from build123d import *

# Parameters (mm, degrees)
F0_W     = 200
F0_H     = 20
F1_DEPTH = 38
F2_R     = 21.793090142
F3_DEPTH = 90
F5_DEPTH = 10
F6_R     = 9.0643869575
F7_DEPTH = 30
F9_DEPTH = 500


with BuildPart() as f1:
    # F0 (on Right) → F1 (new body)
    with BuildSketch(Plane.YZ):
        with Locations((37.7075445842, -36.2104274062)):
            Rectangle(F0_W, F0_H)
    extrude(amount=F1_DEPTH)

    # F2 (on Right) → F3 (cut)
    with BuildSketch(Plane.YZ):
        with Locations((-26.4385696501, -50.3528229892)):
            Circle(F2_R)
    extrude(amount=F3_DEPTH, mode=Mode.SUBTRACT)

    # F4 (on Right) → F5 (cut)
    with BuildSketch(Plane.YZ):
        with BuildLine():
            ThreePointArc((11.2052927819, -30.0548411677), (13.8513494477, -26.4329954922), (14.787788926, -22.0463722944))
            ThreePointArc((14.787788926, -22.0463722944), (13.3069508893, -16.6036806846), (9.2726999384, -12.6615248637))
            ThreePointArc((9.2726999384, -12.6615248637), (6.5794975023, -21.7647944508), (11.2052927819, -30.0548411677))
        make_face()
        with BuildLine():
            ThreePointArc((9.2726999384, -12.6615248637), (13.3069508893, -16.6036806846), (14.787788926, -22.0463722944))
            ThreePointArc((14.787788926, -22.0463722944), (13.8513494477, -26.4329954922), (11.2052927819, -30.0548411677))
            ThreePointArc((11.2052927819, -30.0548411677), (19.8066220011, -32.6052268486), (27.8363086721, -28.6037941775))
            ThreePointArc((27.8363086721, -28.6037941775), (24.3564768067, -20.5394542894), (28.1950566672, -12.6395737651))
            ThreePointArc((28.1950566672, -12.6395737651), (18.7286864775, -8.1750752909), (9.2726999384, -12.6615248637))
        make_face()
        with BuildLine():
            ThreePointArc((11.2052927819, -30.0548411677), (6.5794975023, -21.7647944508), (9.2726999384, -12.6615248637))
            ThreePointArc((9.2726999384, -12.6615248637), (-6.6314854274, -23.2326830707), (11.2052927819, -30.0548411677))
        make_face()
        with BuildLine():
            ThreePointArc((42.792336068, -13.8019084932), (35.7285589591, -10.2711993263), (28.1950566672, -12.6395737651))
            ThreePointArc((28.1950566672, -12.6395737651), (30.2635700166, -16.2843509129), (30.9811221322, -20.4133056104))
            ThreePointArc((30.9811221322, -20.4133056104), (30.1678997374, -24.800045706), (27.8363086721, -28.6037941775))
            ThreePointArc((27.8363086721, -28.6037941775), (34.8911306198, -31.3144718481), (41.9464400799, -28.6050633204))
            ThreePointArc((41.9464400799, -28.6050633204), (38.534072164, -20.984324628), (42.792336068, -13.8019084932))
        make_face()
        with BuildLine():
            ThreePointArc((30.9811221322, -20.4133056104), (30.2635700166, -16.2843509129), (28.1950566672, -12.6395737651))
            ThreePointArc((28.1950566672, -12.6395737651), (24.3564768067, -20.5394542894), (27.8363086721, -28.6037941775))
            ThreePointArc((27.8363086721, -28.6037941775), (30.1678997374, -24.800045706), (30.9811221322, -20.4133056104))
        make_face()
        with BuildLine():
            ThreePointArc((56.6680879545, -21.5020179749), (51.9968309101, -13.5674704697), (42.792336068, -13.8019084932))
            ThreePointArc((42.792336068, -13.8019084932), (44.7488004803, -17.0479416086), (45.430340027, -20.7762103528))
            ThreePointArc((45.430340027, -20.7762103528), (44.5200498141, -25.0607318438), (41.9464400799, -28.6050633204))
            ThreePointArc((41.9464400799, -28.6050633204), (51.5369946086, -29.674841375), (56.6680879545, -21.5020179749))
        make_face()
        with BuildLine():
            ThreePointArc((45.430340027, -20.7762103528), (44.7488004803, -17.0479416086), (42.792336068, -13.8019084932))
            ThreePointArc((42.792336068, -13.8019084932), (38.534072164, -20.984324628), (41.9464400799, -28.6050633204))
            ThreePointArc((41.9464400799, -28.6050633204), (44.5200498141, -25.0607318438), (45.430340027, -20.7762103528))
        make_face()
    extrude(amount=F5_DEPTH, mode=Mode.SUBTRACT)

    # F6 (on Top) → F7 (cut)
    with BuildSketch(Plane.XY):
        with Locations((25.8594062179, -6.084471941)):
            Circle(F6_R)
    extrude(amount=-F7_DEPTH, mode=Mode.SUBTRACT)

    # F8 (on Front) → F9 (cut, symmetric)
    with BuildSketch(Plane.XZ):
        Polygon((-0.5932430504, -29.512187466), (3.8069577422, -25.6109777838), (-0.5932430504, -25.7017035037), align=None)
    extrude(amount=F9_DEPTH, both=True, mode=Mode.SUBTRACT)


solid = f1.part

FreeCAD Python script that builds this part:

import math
import FreeCAD as App
import Part
import Sketcher

V = App.Vector


def add_polygon(sketch, points):
    """Adds a closed chain of lines whose ends are joined by coincident constraints."""
    first, n = sketch.GeometryCount, len(points)
    for a, b in zip(points, points[1:] + points[:1]):
        sketch.addGeometry(Part.LineSegment(App.Vector(*a, 0), App.Vector(*b, 0)), False)
    for i in range(n):
        sketch.addConstraint(Sketcher.Constraint("Coincident", first + i, 2, first + (i + 1) % n, 1))

doc = App.newDocument("Part")
body = doc.addObject("PartDesign::Body", "Body")

# Sketch on YZ plane
sketch1 = doc.addObject("Sketcher::SketchObject", "Sketch")
body.addObject(sketch1)
sketch1.AttachmentSupport = (doc.YZ_Plane, [""])
sketch1.MapMode = "FlatFace"
add_polygon(sketch1, [(-62, -26), (-62, -46), (138, -46), (138, -26)])  # lines 0-3
sketch1.addConstraint([
    Sketcher.Constraint("Vertical", 0),
    Sketcher.Constraint("Horizontal", 1),
    Sketcher.Constraint("Vertical", 2),
    Sketcher.Constraint("Horizontal", 3),
    Sketcher.Constraint("DistanceX", 1, 1, 1, 2, 200.0),
    Sketcher.Constraint("DistanceY", 0, 2, 0, 1, 20.0),
    Sketcher.Constraint("DistanceX", 0, 2, -1, 1, 62.292455),
    Sketcher.Constraint("DistanceY", 0, 2, -1, 1, 46.210427),
])
pad1 = doc.addObject("PartDesign::Pad", "Pad")
body.addObject(pad1)
pad1.Profile = sketch1
pad1.Length = 38

# Sketch on YZ plane
sketch2 = doc.addObject("Sketcher::SketchObject", "Sketch001")
body.addObject(sketch2)
sketch2.AttachmentSupport = (doc.YZ_Plane, [""])
sketch2.MapMode = "FlatFace"
sketch2.addGeometry(Part.Circle(V(-26, -50, 0), V(0, 0, 1), 22), False)
sketch2.addConstraint([
    Sketcher.Constraint("Diameter", 0, 43.58618),
    Sketcher.Constraint("DistanceX", 0, 3, -1, 1, 26.43857),
    Sketcher.Constraint("DistanceY", 0, 3, -1, 1, 50.352823),
])
pocket1 = doc.addObject("PartDesign::Pocket", "Pocket")
body.addObject(pocket1)
pocket1.Profile = sketch2
pocket1.Length = 90
pocket1.Reversed = True

# Sketch on YZ plane
sketch3 = doc.addObject("Sketcher::SketchObject", "Sketch002")
body.addObject(sketch3)
sketch3.AttachmentSupport = (doc.YZ_Plane, [""])
sketch3.MapMode = "FlatFace"
sketch3.addGeometry([
    Part.ArcOfCircle(Part.Circle(V(19, -20, 0), V(0, 0, 1), 12), math.radians(-128), math.radians(-42)),  # 0
    Part.ArcOfCircle(Part.Circle(V(35, -21, 0), V(0, 0, 1), 11), math.radians(-132), math.radians(-48)),  # 1
    Part.ArcOfCircle(Part.Circle(V(48, -22, 0), V(0, 0, 1), 9), math.radians(-128), math.radians(0)),  # 2
    Part.ArcOfCircle(Part.Circle(V(48, -22, 0), V(0, 0, 1), 9), math.radians(0), math.radians(122)),  # 3
    Part.ArcOfCircle(Part.Circle(V(35, -21, 0), V(0, 0, 1), 11), math.radians(41), math.radians(129)),  # 4
    Part.ArcOfCircle(Part.Circle(V(19, -20, 0), V(0, 0, 1), 12), math.radians(39), math.radians(141)),  # 5
    Part.ArcOfCircle(Part.Circle(V(4, -22, 0), V(0, 0, 1), 11), math.radians(61), math.radians(312)),  # 6
], False)
sketch3.addConstraint([
    Sketcher.Constraint("Coincident", 0, 2, 1, 1),
    Sketcher.Constraint("Coincident", 1, 2, 2, 1),
    Sketcher.Constraint("Tangent", 2, 2, 3, 1),
    Sketcher.Constraint("Coincident", 3, 2, 4, 1),
    Sketcher.Constraint("Coincident", 4, 2, 5, 1),
    Sketcher.Constraint("Coincident", 5, 2, 6, 1),
    Sketcher.Constraint("Coincident", 6, 2, 0, 1),
    Sketcher.Constraint("Coincident", 4, 3, 1, 3),
    Sketcher.Constraint("Coincident", 5, 3, 0, 3),
    Sketcher.Constraint("Equal", 2, 3),
    Sketcher.Constraint("Equal", 1, 4),
    Sketcher.Constraint("Equal", 0, 5),
    Sketcher.Constraint("Horizontal", 3, 3, 2, 2),
    Sketcher.Constraint("Radius", 0, 12.238239),
    Sketcher.Constraint("Radius", 1, 10.538262),
    Sketcher.Constraint("Radius", 6, 10.742489),
    Sketcher.Constraint("Radius", 2, 9.074397),
    Sketcher.Constraint("DistanceX", -1, 1, 6, 3, 4.0453),
    Sketcher.Constraint("DistanceX", -1, 1, 5, 2, 9.2727),
    Sketcher.Constraint("DistanceY", 1, 3, 3, 2, 6.974302),
    Sketcher.Constraint("DistanceX", -1, 1, 1, 3, 34.892078),
    Sketcher.Constraint("DistanceY", 1, 3, -1, 1, 20.77621),
    Sketcher.Constraint("DistanceX", -1, 1, 2, 3, 47.59369),
    Sketcher.Constraint("DistanceX", -1, 1, 0, 2, 27.836309),
    Sketcher.Constraint("DistanceY", 6, 2, -1, 1, 30.054841),
])
pocket2 = doc.addObject("PartDesign::Pocket", "Pocket001")
body.addObject(pocket2)
pocket2.Profile = sketch3
pocket2.Length = 10
pocket2.Reversed = True

# Sketch on XY plane
sketch4 = doc.addObject("Sketcher::SketchObject", "Sketch003")
body.addObject(sketch4)
sketch4.AttachmentSupport = (doc.XY_Plane, [""])
sketch4.MapMode = "FlatFace"
sketch4.addGeometry(Part.Circle(V(26, -6, 0), V(0, 0, 1), 9), False)
sketch4.addConstraint([
    Sketcher.Constraint("Diameter", 0, 18.128774),
    Sketcher.Constraint("DistanceY", 0, 3, -1, 1, 6.084472),
    Sketcher.Constraint("DistanceX", -1, 1, 0, 3, 25.859406),
])
pocket3 = doc.addObject("PartDesign::Pocket", "Pocket002")
body.addObject(pocket3)
pocket3.Profile = sketch4
pocket3.Length = 30

# Sketch on XZ plane
sketch5 = doc.addObject("Sketcher::SketchObject", "Sketch004")
body.addObject(sketch5)
sketch5.AttachmentSupport = (doc.XZ_Plane, [""])
sketch5.MapMode = "FlatFace"
add_polygon(sketch5, [(-0.6, -29.5), (3.8, -25.6), (-0.6, -25.7)])  # lines 0-2
sketch5.addConstraint([
    Sketcher.Constraint("Vertical", 2),
    Sketcher.Constraint("DistanceX", 1, 2, 0, 2, 4.400201),
    Sketcher.Constraint("Distance", 0, 5.880579),
    Sketcher.Constraint("DistanceY", 2, 2, 2, 1, 3.810484),
    Sketcher.Constraint("DistanceX", -1, 1, 0, 2, 3.806958),
    Sketcher.Constraint("DistanceY", 0, 2, -1, 1, 25.610978),
])
pocket4 = doc.addObject("PartDesign::Pocket", "Pocket003")
body.addObject(pocket4)
pocket4.Profile = sketch5
pocket4.Length = 1000
pocket4.Midplane = True

doc.recompute()
